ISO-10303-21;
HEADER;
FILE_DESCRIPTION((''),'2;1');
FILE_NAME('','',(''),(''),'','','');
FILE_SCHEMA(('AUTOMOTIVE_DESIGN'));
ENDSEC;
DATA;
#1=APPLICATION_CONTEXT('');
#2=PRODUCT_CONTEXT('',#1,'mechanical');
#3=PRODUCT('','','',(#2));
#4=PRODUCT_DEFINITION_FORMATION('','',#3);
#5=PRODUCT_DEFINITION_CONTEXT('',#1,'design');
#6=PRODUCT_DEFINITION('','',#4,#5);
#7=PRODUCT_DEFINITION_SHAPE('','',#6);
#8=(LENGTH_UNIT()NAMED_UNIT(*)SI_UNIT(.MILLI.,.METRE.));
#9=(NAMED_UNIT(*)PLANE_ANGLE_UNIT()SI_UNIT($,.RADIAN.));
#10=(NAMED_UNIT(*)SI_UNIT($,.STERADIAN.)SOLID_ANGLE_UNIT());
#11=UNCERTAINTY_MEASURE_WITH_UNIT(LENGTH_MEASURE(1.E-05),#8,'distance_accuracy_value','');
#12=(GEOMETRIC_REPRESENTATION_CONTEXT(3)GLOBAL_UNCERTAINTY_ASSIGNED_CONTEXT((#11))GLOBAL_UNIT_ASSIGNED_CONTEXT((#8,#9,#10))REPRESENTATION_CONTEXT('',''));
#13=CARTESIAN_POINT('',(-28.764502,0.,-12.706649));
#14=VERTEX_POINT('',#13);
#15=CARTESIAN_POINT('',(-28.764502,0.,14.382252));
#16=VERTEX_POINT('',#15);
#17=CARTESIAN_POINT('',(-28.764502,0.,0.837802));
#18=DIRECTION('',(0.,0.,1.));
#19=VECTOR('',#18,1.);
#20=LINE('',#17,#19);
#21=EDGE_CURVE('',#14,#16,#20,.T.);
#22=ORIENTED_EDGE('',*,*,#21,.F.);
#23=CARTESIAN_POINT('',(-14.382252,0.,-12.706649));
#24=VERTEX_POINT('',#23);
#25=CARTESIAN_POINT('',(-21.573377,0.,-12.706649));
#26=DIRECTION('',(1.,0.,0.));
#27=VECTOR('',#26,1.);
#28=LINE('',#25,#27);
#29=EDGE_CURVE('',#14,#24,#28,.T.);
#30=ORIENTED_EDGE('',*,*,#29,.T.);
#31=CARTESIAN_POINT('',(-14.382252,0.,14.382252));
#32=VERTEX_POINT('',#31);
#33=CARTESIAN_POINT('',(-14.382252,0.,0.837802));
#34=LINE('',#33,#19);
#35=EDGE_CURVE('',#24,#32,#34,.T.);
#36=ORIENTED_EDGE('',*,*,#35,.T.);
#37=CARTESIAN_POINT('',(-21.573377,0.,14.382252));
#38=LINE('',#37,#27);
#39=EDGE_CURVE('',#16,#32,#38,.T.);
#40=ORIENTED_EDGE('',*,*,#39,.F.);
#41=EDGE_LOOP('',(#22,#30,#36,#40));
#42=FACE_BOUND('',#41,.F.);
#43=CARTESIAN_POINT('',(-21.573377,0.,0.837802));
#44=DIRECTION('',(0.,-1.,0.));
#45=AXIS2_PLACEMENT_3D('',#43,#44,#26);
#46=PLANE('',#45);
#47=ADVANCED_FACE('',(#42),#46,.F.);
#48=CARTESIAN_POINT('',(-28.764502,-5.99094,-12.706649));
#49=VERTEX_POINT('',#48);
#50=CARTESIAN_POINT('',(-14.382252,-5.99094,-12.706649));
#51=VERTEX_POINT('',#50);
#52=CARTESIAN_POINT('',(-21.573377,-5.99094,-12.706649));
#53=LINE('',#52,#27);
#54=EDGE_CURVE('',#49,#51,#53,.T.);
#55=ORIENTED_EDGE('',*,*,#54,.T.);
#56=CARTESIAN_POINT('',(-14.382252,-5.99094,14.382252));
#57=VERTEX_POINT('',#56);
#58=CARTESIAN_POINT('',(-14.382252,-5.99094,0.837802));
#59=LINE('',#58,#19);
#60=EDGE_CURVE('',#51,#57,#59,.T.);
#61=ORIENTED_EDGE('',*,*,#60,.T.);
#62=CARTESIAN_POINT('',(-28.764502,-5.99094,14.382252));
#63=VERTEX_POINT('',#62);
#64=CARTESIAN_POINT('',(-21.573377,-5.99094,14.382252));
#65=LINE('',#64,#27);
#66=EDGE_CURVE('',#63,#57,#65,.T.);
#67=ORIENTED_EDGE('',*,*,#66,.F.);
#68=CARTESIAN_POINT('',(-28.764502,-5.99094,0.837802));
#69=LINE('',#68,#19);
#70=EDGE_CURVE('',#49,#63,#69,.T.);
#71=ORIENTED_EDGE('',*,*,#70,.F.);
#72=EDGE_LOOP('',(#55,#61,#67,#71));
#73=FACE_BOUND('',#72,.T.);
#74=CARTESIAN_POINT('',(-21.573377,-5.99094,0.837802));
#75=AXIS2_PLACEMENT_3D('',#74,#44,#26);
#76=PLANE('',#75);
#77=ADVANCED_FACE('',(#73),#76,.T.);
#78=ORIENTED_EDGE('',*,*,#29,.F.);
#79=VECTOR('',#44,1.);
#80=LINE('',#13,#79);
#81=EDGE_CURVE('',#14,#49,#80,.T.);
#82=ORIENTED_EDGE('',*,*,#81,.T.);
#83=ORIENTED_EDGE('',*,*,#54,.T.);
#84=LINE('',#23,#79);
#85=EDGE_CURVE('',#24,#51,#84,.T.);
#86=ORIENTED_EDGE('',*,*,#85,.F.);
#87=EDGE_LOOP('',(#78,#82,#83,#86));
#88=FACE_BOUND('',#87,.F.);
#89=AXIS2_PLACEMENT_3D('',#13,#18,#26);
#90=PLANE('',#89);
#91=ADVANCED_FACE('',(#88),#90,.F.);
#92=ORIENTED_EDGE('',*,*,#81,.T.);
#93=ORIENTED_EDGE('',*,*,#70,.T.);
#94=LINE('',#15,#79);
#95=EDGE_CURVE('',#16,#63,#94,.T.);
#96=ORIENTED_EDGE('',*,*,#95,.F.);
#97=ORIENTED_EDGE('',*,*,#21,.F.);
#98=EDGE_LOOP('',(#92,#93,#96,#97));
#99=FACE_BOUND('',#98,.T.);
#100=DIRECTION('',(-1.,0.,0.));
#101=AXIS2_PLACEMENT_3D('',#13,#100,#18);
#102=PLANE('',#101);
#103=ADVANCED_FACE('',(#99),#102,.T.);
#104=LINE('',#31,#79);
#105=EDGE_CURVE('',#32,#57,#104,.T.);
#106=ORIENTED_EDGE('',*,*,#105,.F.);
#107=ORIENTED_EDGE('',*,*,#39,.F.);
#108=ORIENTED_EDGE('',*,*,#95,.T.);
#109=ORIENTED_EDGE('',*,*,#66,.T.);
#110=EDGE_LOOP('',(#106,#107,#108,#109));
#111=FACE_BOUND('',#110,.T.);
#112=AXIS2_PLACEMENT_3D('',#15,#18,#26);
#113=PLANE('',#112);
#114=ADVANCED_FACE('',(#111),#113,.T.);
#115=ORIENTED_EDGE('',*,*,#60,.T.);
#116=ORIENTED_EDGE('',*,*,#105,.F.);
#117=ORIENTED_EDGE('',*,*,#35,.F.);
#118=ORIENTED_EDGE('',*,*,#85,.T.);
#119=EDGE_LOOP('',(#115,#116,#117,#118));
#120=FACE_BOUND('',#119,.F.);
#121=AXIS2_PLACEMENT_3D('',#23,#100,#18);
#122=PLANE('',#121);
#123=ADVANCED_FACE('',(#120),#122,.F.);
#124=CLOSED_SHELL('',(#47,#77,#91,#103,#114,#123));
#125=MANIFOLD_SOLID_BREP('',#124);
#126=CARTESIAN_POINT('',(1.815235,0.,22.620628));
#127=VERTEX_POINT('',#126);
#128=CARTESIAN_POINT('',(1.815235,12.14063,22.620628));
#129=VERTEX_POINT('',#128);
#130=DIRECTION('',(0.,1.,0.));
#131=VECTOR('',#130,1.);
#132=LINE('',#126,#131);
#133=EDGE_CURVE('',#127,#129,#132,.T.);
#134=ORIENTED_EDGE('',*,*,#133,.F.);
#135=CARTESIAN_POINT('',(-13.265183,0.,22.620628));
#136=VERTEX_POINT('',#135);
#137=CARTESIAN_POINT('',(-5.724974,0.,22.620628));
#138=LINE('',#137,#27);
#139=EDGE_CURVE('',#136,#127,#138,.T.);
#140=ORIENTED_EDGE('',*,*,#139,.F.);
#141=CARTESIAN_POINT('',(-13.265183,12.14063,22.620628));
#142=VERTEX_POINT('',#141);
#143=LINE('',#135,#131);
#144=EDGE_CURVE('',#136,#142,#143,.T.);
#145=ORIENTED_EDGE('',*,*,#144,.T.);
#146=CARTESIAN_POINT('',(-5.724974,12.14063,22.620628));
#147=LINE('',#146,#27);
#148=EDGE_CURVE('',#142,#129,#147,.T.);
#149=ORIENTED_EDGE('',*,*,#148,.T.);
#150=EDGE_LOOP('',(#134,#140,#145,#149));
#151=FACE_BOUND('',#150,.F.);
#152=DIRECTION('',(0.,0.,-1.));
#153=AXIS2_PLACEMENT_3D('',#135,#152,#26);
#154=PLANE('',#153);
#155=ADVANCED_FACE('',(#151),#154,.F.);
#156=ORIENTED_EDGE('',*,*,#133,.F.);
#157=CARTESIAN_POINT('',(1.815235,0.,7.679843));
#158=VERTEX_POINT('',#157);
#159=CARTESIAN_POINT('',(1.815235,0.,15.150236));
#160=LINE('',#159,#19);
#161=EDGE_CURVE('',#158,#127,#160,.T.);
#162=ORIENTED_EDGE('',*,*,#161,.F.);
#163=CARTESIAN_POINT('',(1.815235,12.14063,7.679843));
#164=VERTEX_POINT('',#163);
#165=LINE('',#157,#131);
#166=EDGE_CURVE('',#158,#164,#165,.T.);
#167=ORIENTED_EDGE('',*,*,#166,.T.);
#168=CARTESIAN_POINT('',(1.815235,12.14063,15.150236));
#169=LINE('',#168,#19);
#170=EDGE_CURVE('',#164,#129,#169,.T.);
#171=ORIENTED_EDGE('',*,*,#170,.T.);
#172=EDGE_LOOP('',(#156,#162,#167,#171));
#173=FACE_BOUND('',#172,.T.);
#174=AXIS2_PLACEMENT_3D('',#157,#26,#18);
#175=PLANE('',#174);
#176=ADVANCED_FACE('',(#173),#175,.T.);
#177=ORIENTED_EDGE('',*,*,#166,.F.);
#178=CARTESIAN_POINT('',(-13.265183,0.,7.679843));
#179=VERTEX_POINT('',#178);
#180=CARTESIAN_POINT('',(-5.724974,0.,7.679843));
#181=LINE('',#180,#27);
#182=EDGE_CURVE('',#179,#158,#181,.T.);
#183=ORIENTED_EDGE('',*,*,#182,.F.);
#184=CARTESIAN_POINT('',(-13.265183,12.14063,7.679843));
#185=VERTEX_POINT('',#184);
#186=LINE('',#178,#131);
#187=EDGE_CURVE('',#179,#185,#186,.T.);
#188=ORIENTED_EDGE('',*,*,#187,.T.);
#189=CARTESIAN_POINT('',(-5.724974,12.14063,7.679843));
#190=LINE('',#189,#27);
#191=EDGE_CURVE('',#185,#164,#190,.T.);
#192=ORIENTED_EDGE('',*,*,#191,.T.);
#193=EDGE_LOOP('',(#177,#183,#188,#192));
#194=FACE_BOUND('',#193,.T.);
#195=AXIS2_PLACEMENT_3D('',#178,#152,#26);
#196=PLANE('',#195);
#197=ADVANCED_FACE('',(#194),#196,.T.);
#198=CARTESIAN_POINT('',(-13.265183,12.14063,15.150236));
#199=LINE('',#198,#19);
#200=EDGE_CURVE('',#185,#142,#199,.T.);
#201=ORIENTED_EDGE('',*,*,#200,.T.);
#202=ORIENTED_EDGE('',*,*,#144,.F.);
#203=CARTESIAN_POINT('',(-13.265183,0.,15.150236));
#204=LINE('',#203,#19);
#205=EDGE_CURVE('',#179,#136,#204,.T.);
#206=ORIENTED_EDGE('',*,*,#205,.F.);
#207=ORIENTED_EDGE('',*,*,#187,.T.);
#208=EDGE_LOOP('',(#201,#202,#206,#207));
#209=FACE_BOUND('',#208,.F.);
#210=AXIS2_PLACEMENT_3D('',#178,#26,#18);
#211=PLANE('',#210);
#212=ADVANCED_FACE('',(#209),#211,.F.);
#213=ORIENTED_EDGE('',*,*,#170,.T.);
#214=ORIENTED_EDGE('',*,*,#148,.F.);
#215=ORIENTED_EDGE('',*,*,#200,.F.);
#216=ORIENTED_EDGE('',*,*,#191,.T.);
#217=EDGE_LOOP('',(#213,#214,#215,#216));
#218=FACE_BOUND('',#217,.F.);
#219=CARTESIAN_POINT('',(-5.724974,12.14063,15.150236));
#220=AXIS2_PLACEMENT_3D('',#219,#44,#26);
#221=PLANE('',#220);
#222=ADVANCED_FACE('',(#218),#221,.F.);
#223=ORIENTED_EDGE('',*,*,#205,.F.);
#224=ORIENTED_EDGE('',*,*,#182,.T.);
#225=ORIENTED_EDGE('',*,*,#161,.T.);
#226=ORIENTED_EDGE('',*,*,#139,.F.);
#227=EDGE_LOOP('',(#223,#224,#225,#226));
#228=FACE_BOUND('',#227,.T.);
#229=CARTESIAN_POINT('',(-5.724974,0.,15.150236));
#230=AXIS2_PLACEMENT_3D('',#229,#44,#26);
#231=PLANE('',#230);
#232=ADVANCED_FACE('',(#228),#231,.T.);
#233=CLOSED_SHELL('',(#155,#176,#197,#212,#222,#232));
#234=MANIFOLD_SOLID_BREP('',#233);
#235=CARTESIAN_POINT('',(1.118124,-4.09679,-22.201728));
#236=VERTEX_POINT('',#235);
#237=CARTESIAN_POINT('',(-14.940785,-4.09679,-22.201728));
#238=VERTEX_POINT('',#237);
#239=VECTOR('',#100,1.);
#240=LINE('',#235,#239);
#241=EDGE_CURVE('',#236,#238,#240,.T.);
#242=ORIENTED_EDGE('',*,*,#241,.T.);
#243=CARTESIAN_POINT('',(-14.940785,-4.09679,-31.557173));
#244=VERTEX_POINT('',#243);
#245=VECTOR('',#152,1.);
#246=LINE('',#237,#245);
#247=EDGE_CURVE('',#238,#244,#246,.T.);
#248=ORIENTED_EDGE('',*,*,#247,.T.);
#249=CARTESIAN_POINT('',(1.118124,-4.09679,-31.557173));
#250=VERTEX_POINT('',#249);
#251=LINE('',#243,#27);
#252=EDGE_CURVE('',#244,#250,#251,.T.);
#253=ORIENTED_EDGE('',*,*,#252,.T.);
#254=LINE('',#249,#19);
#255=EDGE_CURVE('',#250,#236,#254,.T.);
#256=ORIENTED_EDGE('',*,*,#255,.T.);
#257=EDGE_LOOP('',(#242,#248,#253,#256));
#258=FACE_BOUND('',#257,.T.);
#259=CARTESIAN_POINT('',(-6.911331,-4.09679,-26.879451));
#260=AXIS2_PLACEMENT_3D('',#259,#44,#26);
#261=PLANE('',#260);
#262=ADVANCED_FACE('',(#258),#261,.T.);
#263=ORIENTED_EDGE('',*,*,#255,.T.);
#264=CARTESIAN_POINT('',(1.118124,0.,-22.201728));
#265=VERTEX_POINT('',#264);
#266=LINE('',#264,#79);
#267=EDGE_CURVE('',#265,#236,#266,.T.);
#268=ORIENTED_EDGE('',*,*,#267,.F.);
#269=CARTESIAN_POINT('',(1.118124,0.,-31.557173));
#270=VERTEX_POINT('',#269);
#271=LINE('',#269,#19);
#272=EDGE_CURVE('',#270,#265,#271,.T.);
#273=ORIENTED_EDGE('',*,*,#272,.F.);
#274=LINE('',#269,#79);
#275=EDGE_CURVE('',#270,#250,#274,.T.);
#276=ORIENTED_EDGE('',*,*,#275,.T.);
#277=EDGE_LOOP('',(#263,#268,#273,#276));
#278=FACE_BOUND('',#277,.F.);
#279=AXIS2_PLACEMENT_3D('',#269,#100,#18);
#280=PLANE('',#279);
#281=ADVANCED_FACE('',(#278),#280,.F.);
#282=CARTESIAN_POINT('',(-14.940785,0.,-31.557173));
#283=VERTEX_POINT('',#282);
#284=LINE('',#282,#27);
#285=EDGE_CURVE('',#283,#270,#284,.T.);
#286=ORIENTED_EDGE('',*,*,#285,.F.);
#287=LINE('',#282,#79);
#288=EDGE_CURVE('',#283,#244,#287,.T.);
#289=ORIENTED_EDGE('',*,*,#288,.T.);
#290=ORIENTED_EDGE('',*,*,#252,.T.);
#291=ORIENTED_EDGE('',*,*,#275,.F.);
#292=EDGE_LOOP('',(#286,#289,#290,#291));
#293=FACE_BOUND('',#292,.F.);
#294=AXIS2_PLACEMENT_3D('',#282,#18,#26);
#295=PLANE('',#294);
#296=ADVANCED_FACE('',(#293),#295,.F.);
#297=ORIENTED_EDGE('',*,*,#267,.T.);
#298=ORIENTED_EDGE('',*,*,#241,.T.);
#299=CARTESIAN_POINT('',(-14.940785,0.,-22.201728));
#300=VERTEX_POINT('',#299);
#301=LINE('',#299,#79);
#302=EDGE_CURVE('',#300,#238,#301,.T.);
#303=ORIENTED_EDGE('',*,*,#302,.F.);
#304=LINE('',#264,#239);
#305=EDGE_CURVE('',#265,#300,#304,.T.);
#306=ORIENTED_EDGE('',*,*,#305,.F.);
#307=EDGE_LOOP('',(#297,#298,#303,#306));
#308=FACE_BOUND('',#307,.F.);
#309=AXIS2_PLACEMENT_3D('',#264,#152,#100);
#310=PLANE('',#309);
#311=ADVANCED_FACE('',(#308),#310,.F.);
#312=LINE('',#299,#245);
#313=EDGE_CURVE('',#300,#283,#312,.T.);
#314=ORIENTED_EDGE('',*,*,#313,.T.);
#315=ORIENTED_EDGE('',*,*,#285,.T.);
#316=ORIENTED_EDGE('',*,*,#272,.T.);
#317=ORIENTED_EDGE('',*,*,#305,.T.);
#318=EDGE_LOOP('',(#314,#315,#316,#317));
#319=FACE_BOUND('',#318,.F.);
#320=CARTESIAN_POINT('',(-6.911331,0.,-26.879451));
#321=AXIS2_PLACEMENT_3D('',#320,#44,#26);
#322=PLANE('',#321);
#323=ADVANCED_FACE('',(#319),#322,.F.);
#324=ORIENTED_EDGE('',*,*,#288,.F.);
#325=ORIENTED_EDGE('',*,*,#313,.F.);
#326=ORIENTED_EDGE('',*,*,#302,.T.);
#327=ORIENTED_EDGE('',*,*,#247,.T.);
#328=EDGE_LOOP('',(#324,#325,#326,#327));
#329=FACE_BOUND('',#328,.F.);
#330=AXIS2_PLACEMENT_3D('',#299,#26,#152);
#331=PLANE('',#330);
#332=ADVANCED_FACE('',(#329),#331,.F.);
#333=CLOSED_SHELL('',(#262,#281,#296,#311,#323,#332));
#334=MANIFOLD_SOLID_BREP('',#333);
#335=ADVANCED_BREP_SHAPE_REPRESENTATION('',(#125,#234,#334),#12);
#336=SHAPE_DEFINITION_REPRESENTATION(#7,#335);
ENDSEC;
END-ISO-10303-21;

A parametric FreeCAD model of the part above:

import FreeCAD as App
import Part
import Sketcher
from FreeCAD import Vector
Q = App.Units.Quantity


def add_polygon(sketch, points):
    """Adds a closed chain of lines whose ends are joined by coincident constraints."""
    first, n = sketch.GeometryCount, len(points)
    for a, b in zip(points, points[1:] + points[:1]):
        sketch.addGeometry(Part.LineSegment(App.Vector(*a, 0), App.Vector(*b, 0)), False)
    for i in range(n):
        sketch.addConstraint(Sketcher.Constraint("Coincident", first + i, 2, first + (i + 1) % n, 1))

doc = App.newDocument("Part")
params = doc.addObject("Spreadsheet::Sheet", "Params")
for row, (alias, value) in enumerate([
    ("pad1_length", "4.09679 mm"),
    ("pad2_length", "4.03607 mm"),
    ("pad3_length", "12.14063 mm"),
    ("pad4_length", "5.99094 mm"),
], start=1):
    params.set(f"A{row}", alias)
    params.set(f"B{row}", "=" + value)
    params.setAlias(f"B{row}", alias)

body = doc.addObject("PartDesign::Body", "Body")

# Sketch on XZ plane
sketch1 = body.newObject("Sketcher::SketchObject", "Sketch")
sketch1.AttachmentSupport = (doc.getObject("XZ_Plane"), [""])
sketch1.MapMode = "FlatFace"
add_polygon(sketch1, [(1.118124, -22.201728), (-14.940785, -22.201728), (-14.940785, -31.557173), (1.118124, -31.557173)])  # lines 0-3
sketch1.addConstraint([
    Sketcher.Constraint("Horizontal", 0),
    Sketcher.Constraint("Vertical", 1),
    Sketcher.Constraint("Horizontal", 2),
    Sketcher.Constraint("Vertical", 3),
    Sketcher.Constraint("DistanceX", 0, 2, 0, 1, Q("16.058909 mm")),
    Sketcher.Constraint("DistanceY", 1, 2, 1, 1, Q("9.355445 mm")),
    Sketcher.Constraint("DistanceX", 0, 2, -1, 1, Q("14.940785 mm")),
    Sketcher.Constraint("DistanceY", 0, 2, -1, 1, Q("22.201728 mm")),
])
pad1 = body.newObject("PartDesign::Pad", "Pad")
pad1.Profile = sketch1
pad1.setExpression("Length", "Params.pad1_length")

# Sketch on XZ plane
sketch2 = body.newObject("Sketcher::SketchObject", "Sketch001")
sketch2.AttachmentSupport = (doc.getObject("XZ_Plane"), [""])
sketch2.MapMode = "FlatFace"
add_polygon(sketch2, [(-4.747539, -24.156598), (-4.747539, -27.228536), (-1.535969, -27.228536), (-1.535969, -24.156598)])  # lines 0-3
sketch2.addConstraint([
    Sketcher.Constraint("Vertical", 0),
    Sketcher.Constraint("Horizontal", 1),
    Sketcher.Constraint("Vertical", 2),
    Sketcher.Constraint("Horizontal", 3),
    Sketcher.Constraint("DistanceX", 1, 1, 1, 2, Q("3.21157 mm")),
    Sketcher.Constraint("DistanceY", 0, 2, 0, 1, Q("3.071938 mm")),
    Sketcher.Constraint("DistanceX", 0, 2, -1, 1, Q("4.747539 mm")),
    Sketcher.Constraint("DistanceY", 0, 2, -1, 1, Q("27.228536 mm")),
])
pad2 = body.newObject("PartDesign::Pad", "Pad001")
pad2.Profile = sketch2
pad2.setExpression("Length", "Params.pad2_length")
body2 = doc.addObject("PartDesign::Body", "Body001")

# Sketch on XZ plane
sketch3 = body2.newObject("Sketcher::SketchObject", "Sketch002")
sketch3.AttachmentSupport = (doc.getObject("XZ_Plane001"), [""])
sketch3.MapMode = "FlatFace"
add_polygon(sketch3, [(-13.265183, 22.620628), (-13.265183, 7.679843), (1.815235, 7.679843), (1.815235, 22.620628)])  # lines 0-3
sketch3.addConstraint([
    Sketcher.Constraint("Vertical", 0),
    Sketcher.Constraint("Horizontal", 1),
    Sketcher.Constraint("Vertical", 2),
    Sketcher.Constraint("Horizontal", 3),
    Sketcher.Constraint("DistanceX", 1, 1, 1, 2, Q("15.080418 mm")),
    Sketcher.Constraint("DistanceY", 0, 2, 0, 1, Q("14.940785 mm")),
    Sketcher.Constraint("DistanceY", -1, 1, 2, 2, Q("22.620628 mm")),
    Sketcher.Constraint("DistanceX", 0, 2, -1, 1, Q("13.265183 mm")),
])
pad3 = body2.newObject("PartDesign::Pad", "Pad002")
pad3.Profile = sketch3
pad3.setExpression("Length", "Params.pad3_length")
pad3.Reversed = True
body3 = doc.addObject("PartDesign::Body", "Body002")

# Sketch on XZ plane
sketch4 = body3.newObject("Sketcher::SketchObject", "Sketch003")
sketch4.AttachmentSupport = (doc.getObject("XZ_Plane002"), [""])
sketch4.MapMode = "FlatFace"
add_polygon(sketch4, [(-28.764502, 14.382252), (-28.764502, -12.706649), (-14.382252, -12.706649), (-14.382252, 14.382252)])  # lines 0-3
sketch4.addConstraint([
    Sketcher.Constraint("Vertical", 0),
    Sketcher.Constraint("Horizontal", 1),
    Sketcher.Constraint("Vertical", 2),
    Sketcher.Constraint("Horizontal", 3),
    Sketcher.Constraint("DistanceY", 0, 2, 0, 1, Q("27.088901 mm")),
    Sketcher.Constraint("DistanceX", 1, 1, 1, 2, Q("14.382251 mm")),
    Sketcher.Constraint("DistanceY", 0, 2, -1, 1, Q("12.706649 mm")),
    Sketcher.Constraint("DistanceX", 1, 2, -1, 1, Q("14.382252 mm")),
])
pad4 = body3.newObject("PartDesign::Pad", "Pad003")
pad4.Profile = sketch4
pad4.setExpression("Length", "Params.pad4_length")

doc.recompute()
